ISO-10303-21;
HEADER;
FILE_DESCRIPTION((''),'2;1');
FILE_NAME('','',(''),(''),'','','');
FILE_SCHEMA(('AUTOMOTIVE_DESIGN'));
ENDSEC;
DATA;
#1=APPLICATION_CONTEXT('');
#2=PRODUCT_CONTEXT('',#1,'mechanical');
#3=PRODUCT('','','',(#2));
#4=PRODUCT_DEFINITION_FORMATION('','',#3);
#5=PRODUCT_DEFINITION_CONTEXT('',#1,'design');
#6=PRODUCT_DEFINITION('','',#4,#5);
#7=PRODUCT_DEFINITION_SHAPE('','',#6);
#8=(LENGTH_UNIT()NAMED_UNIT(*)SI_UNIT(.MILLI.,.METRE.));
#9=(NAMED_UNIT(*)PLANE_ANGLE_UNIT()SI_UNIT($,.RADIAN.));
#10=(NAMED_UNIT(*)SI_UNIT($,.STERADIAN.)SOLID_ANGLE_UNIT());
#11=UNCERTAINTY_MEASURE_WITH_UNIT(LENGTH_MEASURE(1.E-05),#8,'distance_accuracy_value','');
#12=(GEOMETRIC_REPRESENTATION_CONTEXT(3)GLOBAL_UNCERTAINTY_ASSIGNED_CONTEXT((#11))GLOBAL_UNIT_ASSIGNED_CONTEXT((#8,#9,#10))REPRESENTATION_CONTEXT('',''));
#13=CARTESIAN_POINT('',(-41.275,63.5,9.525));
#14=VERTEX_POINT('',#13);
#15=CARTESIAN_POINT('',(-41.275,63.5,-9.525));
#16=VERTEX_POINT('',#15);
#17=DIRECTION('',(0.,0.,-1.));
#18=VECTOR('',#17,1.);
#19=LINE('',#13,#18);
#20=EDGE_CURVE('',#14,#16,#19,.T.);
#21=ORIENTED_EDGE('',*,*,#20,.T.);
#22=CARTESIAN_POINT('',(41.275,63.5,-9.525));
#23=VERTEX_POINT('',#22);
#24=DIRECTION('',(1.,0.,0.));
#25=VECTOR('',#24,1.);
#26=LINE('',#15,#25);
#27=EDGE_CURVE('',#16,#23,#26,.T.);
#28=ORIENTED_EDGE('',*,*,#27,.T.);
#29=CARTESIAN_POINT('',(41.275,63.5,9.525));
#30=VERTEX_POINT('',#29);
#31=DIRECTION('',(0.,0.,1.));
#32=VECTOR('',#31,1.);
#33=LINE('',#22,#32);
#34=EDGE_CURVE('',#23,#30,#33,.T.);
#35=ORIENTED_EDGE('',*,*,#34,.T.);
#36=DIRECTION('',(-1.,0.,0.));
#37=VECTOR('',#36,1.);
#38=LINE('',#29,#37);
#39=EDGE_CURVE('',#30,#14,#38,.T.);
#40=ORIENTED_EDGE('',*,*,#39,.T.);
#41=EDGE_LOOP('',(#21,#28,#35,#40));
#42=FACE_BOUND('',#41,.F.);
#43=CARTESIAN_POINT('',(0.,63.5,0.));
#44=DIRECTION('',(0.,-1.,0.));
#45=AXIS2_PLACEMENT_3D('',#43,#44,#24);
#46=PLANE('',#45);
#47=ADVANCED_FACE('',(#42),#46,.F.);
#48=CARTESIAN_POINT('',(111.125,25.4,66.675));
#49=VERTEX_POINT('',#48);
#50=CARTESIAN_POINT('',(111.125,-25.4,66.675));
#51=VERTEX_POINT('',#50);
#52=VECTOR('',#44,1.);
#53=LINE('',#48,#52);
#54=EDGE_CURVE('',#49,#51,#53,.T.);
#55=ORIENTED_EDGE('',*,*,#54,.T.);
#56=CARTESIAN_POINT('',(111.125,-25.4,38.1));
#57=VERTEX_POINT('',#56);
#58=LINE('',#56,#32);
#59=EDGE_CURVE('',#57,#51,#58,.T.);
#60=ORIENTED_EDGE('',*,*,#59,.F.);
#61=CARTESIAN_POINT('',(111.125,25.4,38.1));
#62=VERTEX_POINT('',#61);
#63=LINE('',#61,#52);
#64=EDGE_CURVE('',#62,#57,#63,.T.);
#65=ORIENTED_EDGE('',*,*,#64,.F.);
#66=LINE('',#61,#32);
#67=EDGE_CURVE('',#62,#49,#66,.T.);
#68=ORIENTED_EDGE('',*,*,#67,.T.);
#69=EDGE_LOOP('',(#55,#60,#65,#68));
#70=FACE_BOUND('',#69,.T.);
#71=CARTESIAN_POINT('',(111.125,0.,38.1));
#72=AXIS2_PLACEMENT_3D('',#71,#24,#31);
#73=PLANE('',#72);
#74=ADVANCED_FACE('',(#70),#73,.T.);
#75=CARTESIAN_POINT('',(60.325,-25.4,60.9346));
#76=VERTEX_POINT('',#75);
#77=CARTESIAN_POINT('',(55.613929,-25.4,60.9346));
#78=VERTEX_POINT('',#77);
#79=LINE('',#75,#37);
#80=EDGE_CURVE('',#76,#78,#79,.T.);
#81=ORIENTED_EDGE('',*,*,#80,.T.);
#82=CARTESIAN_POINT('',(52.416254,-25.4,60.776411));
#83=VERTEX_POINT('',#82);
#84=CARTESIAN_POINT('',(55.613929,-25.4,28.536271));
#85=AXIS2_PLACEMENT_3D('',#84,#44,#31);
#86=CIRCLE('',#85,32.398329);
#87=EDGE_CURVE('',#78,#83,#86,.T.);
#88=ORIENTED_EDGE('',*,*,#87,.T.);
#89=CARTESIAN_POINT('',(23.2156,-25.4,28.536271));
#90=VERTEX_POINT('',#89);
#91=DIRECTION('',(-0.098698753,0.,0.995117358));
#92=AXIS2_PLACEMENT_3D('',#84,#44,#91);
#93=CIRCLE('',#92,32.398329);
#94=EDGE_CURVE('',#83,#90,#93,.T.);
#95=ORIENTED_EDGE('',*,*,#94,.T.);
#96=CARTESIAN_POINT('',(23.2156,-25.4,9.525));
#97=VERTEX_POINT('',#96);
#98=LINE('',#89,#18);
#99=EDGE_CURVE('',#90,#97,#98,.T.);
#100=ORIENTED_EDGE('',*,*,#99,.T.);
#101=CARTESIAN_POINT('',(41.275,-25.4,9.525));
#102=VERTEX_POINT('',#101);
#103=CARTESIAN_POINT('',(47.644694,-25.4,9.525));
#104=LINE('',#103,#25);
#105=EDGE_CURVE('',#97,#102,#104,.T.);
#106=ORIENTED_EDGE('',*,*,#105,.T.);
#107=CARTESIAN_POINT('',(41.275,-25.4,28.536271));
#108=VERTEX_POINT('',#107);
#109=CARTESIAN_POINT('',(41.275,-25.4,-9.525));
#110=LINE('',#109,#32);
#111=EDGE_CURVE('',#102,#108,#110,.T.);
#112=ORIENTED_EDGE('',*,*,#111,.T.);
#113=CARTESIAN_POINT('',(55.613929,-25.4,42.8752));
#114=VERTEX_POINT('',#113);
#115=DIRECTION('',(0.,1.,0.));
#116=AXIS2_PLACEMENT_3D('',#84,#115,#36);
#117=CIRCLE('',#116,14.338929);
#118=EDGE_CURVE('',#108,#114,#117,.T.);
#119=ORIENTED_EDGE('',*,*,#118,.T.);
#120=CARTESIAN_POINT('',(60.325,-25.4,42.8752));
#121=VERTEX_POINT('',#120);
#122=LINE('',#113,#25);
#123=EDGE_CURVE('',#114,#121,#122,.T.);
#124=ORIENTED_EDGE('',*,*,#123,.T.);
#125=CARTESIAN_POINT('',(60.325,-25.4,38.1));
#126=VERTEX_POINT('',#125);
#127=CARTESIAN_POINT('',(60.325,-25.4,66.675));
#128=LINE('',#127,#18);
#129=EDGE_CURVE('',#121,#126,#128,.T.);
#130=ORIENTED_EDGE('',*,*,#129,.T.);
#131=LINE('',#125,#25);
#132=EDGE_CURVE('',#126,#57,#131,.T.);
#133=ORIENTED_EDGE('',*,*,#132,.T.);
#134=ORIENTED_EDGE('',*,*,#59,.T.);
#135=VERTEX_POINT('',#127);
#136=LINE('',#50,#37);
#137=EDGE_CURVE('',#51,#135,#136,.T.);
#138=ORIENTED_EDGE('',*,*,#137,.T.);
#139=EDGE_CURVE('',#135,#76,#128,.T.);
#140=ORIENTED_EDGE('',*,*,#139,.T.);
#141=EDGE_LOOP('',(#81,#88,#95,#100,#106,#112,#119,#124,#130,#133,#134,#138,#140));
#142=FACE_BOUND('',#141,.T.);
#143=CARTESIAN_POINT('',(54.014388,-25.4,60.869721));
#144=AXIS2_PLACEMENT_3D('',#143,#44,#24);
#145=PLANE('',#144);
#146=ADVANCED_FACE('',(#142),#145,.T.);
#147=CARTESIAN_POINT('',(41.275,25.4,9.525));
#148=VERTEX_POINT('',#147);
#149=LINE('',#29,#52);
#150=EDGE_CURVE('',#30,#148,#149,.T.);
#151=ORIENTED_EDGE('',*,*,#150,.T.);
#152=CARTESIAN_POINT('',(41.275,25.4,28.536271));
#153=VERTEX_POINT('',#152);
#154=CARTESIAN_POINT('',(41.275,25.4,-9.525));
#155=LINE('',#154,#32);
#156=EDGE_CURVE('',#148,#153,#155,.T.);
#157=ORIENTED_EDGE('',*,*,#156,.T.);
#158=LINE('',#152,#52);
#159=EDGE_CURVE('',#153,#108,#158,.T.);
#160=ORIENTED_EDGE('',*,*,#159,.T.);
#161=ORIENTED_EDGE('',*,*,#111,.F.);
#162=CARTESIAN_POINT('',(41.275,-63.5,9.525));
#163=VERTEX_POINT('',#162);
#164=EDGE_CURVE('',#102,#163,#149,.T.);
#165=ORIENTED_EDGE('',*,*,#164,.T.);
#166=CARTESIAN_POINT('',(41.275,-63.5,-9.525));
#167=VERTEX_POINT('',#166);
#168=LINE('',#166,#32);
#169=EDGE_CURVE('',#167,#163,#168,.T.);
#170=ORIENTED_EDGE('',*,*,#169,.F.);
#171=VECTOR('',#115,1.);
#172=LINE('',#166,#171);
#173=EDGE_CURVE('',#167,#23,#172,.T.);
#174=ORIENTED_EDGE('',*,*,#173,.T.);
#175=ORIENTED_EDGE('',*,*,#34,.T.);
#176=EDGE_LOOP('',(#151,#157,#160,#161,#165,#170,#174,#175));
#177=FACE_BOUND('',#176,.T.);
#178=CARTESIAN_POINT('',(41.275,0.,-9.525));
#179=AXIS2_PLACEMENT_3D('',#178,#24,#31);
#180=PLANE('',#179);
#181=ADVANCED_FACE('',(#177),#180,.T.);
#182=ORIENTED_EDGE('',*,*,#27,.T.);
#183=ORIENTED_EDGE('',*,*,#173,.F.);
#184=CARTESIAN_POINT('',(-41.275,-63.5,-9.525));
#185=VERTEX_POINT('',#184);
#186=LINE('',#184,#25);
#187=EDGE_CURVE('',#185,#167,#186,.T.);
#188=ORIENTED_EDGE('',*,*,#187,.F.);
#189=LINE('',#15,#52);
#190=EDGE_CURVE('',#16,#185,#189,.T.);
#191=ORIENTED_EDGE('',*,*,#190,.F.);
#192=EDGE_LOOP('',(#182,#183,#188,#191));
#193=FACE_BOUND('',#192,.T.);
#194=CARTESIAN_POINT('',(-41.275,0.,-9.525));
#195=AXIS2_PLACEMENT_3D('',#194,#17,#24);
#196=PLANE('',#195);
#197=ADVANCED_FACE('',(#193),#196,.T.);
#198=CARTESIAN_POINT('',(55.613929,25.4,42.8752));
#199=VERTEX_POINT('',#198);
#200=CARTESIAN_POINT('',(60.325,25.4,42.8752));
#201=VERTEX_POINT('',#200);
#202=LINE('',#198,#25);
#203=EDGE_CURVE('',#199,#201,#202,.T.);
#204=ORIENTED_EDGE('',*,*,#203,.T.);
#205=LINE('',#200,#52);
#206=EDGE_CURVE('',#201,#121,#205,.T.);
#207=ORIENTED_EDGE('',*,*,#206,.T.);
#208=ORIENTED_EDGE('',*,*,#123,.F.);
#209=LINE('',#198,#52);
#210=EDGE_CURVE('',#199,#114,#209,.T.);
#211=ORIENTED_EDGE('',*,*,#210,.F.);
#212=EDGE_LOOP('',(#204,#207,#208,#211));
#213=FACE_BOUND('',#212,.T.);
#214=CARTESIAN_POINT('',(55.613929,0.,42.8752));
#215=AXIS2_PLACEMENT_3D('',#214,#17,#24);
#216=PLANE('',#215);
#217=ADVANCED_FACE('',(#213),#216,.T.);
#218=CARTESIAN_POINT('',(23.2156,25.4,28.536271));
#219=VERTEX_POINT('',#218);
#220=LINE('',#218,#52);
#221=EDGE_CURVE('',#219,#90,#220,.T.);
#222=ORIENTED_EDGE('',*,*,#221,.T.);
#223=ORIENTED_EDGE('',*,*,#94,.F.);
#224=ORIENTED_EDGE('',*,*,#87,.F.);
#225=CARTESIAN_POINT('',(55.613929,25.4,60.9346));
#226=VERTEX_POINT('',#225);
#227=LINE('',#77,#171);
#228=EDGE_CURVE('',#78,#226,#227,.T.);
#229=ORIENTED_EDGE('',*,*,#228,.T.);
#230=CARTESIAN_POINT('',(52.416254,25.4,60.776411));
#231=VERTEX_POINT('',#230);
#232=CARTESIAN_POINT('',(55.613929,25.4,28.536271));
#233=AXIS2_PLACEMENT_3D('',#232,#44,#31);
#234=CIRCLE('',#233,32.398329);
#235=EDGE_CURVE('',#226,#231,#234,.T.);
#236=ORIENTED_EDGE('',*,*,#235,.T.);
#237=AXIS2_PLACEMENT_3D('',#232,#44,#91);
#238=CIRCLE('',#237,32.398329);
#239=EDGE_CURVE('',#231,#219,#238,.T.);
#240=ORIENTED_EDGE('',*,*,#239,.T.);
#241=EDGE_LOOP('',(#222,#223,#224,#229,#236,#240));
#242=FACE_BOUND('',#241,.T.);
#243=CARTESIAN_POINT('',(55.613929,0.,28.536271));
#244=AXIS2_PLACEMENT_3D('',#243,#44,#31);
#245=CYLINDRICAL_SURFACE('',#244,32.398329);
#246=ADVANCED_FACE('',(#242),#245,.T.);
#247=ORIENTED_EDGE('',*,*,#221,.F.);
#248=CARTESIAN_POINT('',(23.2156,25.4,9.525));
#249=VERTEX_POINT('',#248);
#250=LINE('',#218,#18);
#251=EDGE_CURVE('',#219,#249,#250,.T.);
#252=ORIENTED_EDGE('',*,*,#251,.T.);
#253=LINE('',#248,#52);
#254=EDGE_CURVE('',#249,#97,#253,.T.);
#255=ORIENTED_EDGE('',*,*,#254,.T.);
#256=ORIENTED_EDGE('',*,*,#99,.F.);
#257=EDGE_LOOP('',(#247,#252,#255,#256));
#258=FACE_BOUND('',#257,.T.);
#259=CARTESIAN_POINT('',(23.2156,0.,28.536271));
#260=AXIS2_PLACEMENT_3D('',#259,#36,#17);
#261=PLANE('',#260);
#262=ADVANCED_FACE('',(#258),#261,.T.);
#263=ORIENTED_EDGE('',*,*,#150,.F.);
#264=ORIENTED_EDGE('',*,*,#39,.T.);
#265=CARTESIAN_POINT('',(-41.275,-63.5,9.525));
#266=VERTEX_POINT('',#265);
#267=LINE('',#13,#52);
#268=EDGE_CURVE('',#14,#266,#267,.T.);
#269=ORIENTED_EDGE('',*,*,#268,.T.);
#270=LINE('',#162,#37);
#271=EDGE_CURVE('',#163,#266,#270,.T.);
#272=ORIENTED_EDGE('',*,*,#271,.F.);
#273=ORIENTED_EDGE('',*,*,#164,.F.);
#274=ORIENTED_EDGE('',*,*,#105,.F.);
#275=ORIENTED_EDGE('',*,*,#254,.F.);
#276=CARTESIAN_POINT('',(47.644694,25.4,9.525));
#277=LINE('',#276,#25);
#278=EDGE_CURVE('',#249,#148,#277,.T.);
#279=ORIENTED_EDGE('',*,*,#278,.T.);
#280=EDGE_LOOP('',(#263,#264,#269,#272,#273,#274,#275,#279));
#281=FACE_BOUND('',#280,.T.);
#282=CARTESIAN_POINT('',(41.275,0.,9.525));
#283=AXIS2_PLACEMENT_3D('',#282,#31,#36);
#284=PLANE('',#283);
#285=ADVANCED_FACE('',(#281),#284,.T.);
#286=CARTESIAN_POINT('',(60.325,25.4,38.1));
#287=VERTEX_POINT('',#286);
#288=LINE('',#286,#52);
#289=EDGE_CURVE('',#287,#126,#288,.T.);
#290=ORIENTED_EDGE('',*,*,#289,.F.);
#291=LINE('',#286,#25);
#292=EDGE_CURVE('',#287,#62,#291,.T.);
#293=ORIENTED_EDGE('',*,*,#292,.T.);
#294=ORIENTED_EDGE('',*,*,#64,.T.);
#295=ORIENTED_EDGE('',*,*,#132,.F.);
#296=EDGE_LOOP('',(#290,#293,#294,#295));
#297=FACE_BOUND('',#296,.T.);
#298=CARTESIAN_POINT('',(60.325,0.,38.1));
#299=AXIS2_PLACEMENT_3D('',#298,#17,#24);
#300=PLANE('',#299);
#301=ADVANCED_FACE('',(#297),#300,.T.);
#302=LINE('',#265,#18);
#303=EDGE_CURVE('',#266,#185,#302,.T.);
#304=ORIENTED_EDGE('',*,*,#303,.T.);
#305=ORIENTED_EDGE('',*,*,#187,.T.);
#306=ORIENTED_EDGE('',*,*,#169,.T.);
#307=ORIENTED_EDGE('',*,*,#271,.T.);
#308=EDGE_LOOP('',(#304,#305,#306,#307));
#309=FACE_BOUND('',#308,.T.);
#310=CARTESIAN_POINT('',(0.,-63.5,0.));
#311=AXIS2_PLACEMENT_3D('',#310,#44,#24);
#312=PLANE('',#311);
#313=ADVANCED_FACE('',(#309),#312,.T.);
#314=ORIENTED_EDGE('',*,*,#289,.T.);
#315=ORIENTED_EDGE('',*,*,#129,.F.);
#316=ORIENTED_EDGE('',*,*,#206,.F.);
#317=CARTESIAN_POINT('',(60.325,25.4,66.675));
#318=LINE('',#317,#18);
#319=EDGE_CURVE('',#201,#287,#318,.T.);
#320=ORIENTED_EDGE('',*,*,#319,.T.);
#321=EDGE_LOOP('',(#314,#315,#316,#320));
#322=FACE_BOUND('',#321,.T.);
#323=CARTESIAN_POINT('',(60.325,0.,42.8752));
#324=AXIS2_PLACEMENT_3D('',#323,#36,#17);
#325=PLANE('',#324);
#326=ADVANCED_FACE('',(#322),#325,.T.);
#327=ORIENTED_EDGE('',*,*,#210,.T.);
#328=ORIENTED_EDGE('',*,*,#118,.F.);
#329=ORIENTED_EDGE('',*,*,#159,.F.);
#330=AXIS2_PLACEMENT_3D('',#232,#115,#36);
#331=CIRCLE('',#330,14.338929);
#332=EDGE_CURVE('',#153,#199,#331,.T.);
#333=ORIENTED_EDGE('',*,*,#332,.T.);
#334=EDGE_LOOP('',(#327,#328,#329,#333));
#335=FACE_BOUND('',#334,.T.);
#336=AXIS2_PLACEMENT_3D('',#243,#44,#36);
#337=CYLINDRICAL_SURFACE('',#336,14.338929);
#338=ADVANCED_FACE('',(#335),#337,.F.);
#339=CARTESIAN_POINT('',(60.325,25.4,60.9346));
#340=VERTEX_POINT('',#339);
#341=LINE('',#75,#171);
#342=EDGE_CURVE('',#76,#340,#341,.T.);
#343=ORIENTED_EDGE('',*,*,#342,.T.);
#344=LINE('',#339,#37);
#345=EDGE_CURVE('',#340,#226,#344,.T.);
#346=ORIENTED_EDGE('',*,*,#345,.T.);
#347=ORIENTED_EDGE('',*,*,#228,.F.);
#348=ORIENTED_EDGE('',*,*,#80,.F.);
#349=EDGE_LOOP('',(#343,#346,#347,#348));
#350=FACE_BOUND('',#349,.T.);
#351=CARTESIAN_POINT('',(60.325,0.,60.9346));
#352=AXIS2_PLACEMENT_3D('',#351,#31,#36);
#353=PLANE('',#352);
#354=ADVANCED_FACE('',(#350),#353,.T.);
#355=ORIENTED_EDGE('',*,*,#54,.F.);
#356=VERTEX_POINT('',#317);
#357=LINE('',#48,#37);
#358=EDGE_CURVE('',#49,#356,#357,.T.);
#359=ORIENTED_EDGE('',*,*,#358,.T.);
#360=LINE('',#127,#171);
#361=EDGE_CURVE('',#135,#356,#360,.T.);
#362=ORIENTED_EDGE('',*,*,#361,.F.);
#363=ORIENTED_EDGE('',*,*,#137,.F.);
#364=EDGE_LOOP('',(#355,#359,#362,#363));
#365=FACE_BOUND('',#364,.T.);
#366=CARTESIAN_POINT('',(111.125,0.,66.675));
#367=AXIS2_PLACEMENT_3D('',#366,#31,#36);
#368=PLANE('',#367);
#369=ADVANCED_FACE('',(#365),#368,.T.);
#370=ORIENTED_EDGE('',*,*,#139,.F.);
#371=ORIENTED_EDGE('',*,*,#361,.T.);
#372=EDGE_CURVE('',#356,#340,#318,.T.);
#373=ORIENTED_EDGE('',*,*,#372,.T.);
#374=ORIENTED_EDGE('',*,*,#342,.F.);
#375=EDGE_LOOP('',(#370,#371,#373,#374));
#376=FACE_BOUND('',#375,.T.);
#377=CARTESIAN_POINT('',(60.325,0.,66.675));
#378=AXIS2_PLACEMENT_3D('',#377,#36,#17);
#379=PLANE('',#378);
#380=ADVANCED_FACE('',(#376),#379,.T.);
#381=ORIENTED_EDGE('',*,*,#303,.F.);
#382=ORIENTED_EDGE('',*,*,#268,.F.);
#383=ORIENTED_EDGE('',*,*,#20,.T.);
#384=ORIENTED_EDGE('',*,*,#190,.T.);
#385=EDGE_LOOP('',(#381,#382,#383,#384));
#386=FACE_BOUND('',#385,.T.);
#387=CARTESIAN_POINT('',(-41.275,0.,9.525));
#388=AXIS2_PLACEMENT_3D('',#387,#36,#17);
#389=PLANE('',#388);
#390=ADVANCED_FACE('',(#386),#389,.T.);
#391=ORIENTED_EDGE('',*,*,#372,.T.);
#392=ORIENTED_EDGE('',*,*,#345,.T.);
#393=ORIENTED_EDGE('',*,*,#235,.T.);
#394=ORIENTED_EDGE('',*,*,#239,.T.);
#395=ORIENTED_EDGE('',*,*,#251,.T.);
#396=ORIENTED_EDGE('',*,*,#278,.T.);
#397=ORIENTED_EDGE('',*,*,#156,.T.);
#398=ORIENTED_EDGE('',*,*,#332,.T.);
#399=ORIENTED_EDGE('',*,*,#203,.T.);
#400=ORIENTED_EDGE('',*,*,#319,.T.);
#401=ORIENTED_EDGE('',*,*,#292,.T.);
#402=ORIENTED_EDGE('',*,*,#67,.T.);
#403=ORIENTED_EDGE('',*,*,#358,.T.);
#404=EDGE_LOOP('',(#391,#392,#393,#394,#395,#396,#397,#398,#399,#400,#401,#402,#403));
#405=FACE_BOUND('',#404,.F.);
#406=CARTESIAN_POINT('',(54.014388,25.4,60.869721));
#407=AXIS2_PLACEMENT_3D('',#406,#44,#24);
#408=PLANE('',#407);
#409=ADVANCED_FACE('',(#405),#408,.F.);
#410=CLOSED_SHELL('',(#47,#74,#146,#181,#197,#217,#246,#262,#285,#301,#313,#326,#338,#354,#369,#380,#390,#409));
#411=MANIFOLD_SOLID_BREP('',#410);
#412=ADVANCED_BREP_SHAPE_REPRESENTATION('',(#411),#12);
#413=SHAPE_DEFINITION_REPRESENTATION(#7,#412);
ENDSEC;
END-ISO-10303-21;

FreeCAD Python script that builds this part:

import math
import FreeCAD as App
import Part
import Sketcher

V = App.Vector
Q = App.Units.Quantity

doc = App.newDocument("Part")
body = doc.addObject("PartDesign::Body", "Body")

# Sketch on XZ plane
sketch1 = doc.addObject("Sketcher::SketchObject", "Sketch")
body.addObject(sketch1)
sketch1.AttachmentSupport = (doc.XZ_Plane, [""])
sketch1.MapMode = "FlatFace"
sketch1.addGeometry([
    Part.LineSegment(V(41, -10, 0), V(41, 10, 0)),
    Part.LineSegment(V(41, 10, 0), V(-41, 10, 0)),
    Part.LineSegment(V(-41, 10, 0), V(-41, -10, 0)),
    Part.LineSegment(V(-41, -10, 0), V(41, -10, 0)),
], False)
sketch1.addConstraint([
    Sketcher.Constraint("Coincident", 0, 2, 1, 1),
    Sketcher.Constraint("Coincident", 1, 2, 2, 1),
    Sketcher.Constraint("Coincident", 2, 2, 3, 1),
    Sketcher.Constraint("Coincident", 3, 2, 0, 1),
    Sketcher.Constraint("Vertical", 0),
    Sketcher.Constraint("Horizontal", 1),
    Sketcher.Constraint("Vertical", 2),
    Sketcher.Constraint("Horizontal", 3),
    Sketcher.Constraint("Symmetric", 0, 2, 2, 2, -1, 1),
    Sketcher.Constraint("DistanceX", 1, 2, 1, 1, Q("3.25 in")),
    Sketcher.Constraint("DistanceY", 0, 1, 0, 2, Q("0.75 in")),
])
pad1 = doc.addObject("PartDesign::Pad", "Pad")
body.addObject(pad1)
pad1.Profile = sketch1
pad1.Length = Q("5 in")
pad1.Midplane = True

# Sketch on XZ plane
sketch2 = doc.addObject("Sketcher::SketchObject", "Sketch001")
body.addObject(sketch2)
sketch2.AttachmentSupport = (doc.XZ_Plane, [""])
sketch2.MapMode = "FlatFace"
sketch2.addGeometry([
    Part.ArcOfCircle(Part.Circle(V(55.6, 28.5, 0), V(0, 0, 1), 32.4), math.radians(90), math.radians(95.66)),  # 0
    Part.ArcOfCircle(Part.Circle(V(55.6, 28.5, 0), V(0, 0, 1), 32.4), math.radians(96), math.radians(180)),  # 1
    Part.LineSegment(V(23.2, 28.5, 0), V(23.2, 9.5, 0)),  # 2
    Part.LineSegment(V(23.2, 9.5, 0), V(-41.3, 9.5, 0)),  # 3
    Part.LineSegment(V(-41.3, 9.5, 0), V(-41.3, -9.5, 0)),  # 4
    Part.LineSegment(V(-41.3, -9.5, 0), V(41.3, -9.5, 0)),  # 5
    Part.LineSegment(V(41.3, -9.5, 0), V(41.3, 28.5, 0)),  # 6
    Part.ArcOfCircle(Part.Circle(V(55.6, 28.5, 0), V(0, 0, 1), 14.3), math.radians(90), math.radians(180)),  # 7
    Part.LineSegment(V(55.6, 42.9, 0), V(60.3, 42.9, 0)),  # 8
    Part.LineSegment(V(60.3, 42.9, 0), V(60.3, 38.1, 0)),  # 9
    Part.LineSegment(V(60.3, 38.1, 0), V(111.1, 38.1, 0)),  # 10
    Part.LineSegment(V(111.1, 38.1, 0), V(111.1, 66.7, 0)),  # 11
    Part.LineSegment(V(111.1, 66.7, 0), V(60.3, 66.7, 0)),  # 12
    Part.LineSegment(V(60.3, 66.7, 0), V(60.3, 60.9, 0)),  # 13
    Part.LineSegment(V(60.3, 60.9, 0), V(55.6, 60.9, 0)),  # 14
], False)
sketch2.addConstraint([
    Sketcher.Constraint("Tangent", 0, 2, 1, 1),
    Sketcher.Constraint("Tangent", 1, 2, 2, 1),
    Sketcher.Constraint("Coincident", 2, 2, 3, 1),
    Sketcher.Constraint("Coincident", 3, 2, 4, 1),
    Sketcher.Constraint("Coincident", 4, 2, 5, 1),
    Sketcher.Constraint("Coincident", 5, 2, 6, 1),
    Sketcher.Constraint("Tangent", 6, 2, 7, 2),
    Sketcher.Constraint("Tangent", 7, 1, 8, 1),
    Sketcher.Constraint("Coincident", 8, 2, 9, 1),
    Sketcher.Constraint("Coincident", 9, 2, 10, 1),
    Sketcher.Constraint("Coincident", 10, 2, 11, 1),
    Sketcher.Constraint("Coincident", 11, 2, 12, 1),
    Sketcher.Constraint("Coincident", 12, 2, 13, 1),
    Sketcher.Constraint("Coincident", 13, 2, 14, 1),
    Sketcher.Constraint("Tangent", 14, 2, 0, 1),
    Sketcher.Constraint("Vertical", 2),
    Sketcher.Constraint("Horizontal", 3),
    Sketcher.Constraint("Vertical", 4),
    Sketcher.Constraint("Horizontal", 5),
    Sketcher.Constraint("Vertical", 6),
    Sketcher.Constraint("Horizontal", 8),
    Sketcher.Constraint("Vertical", 9),
    Sketcher.Constraint("Horizontal", 10),
    Sketcher.Constraint("Vertical", 11),
    Sketcher.Constraint("Horizontal", 12),
    Sketcher.Constraint("Vertical", 13),
    Sketcher.Constraint("Horizontal", 14),
    Sketcher.Constraint("Coincident", 7, 3, 0, 3),
    Sketcher.Constraint("Equal", 0, 1),
    Sketcher.Constraint("Symmetric", 3, 2, 5, 2, -1, 1),
    Sketcher.Constraint("Vertical", 9, 2, 12, 2),
    Sketcher.Constraint("DistanceX", 10, 1, 10, 2, Q("2 in")),
    Sketcher.Constraint("DistanceX", 5, 1, 5, 2, Q("3.25 in")),
    Sketcher.Constraint("DistanceY", 4, 2, 4, 1, Q("0.75 in")),
    Sketcher.Constraint("DistanceY", -1, 1, 9, 2, Q("1.5 in")),
    Sketcher.Constraint("DistanceX", 3, 2, 3, 1, Q("2.539 in")),
    Sketcher.Constraint("DistanceY", 9, 2, 9, 1, Q("0.188 in")),
    Sketcher.Constraint("DistanceY", 11, 1, 11, 2, Q("1.125 in")),
    Sketcher.Constraint("DistanceX", -1, 1, 8, 2, Q("2.375 in")),
    Sketcher.Constraint("Radius", 0, 32.398329),
    Sketcher.Constraint("DistanceY", -1, 1, 0, 2, 60.776411),
])
pad2 = doc.addObject("PartDesign::Pad", "Pad001")
body.addObject(pad2)
pad2.Profile = sketch2
pad2.Length = Q("2 in")
pad2.Midplane = True

doc.recompute()
